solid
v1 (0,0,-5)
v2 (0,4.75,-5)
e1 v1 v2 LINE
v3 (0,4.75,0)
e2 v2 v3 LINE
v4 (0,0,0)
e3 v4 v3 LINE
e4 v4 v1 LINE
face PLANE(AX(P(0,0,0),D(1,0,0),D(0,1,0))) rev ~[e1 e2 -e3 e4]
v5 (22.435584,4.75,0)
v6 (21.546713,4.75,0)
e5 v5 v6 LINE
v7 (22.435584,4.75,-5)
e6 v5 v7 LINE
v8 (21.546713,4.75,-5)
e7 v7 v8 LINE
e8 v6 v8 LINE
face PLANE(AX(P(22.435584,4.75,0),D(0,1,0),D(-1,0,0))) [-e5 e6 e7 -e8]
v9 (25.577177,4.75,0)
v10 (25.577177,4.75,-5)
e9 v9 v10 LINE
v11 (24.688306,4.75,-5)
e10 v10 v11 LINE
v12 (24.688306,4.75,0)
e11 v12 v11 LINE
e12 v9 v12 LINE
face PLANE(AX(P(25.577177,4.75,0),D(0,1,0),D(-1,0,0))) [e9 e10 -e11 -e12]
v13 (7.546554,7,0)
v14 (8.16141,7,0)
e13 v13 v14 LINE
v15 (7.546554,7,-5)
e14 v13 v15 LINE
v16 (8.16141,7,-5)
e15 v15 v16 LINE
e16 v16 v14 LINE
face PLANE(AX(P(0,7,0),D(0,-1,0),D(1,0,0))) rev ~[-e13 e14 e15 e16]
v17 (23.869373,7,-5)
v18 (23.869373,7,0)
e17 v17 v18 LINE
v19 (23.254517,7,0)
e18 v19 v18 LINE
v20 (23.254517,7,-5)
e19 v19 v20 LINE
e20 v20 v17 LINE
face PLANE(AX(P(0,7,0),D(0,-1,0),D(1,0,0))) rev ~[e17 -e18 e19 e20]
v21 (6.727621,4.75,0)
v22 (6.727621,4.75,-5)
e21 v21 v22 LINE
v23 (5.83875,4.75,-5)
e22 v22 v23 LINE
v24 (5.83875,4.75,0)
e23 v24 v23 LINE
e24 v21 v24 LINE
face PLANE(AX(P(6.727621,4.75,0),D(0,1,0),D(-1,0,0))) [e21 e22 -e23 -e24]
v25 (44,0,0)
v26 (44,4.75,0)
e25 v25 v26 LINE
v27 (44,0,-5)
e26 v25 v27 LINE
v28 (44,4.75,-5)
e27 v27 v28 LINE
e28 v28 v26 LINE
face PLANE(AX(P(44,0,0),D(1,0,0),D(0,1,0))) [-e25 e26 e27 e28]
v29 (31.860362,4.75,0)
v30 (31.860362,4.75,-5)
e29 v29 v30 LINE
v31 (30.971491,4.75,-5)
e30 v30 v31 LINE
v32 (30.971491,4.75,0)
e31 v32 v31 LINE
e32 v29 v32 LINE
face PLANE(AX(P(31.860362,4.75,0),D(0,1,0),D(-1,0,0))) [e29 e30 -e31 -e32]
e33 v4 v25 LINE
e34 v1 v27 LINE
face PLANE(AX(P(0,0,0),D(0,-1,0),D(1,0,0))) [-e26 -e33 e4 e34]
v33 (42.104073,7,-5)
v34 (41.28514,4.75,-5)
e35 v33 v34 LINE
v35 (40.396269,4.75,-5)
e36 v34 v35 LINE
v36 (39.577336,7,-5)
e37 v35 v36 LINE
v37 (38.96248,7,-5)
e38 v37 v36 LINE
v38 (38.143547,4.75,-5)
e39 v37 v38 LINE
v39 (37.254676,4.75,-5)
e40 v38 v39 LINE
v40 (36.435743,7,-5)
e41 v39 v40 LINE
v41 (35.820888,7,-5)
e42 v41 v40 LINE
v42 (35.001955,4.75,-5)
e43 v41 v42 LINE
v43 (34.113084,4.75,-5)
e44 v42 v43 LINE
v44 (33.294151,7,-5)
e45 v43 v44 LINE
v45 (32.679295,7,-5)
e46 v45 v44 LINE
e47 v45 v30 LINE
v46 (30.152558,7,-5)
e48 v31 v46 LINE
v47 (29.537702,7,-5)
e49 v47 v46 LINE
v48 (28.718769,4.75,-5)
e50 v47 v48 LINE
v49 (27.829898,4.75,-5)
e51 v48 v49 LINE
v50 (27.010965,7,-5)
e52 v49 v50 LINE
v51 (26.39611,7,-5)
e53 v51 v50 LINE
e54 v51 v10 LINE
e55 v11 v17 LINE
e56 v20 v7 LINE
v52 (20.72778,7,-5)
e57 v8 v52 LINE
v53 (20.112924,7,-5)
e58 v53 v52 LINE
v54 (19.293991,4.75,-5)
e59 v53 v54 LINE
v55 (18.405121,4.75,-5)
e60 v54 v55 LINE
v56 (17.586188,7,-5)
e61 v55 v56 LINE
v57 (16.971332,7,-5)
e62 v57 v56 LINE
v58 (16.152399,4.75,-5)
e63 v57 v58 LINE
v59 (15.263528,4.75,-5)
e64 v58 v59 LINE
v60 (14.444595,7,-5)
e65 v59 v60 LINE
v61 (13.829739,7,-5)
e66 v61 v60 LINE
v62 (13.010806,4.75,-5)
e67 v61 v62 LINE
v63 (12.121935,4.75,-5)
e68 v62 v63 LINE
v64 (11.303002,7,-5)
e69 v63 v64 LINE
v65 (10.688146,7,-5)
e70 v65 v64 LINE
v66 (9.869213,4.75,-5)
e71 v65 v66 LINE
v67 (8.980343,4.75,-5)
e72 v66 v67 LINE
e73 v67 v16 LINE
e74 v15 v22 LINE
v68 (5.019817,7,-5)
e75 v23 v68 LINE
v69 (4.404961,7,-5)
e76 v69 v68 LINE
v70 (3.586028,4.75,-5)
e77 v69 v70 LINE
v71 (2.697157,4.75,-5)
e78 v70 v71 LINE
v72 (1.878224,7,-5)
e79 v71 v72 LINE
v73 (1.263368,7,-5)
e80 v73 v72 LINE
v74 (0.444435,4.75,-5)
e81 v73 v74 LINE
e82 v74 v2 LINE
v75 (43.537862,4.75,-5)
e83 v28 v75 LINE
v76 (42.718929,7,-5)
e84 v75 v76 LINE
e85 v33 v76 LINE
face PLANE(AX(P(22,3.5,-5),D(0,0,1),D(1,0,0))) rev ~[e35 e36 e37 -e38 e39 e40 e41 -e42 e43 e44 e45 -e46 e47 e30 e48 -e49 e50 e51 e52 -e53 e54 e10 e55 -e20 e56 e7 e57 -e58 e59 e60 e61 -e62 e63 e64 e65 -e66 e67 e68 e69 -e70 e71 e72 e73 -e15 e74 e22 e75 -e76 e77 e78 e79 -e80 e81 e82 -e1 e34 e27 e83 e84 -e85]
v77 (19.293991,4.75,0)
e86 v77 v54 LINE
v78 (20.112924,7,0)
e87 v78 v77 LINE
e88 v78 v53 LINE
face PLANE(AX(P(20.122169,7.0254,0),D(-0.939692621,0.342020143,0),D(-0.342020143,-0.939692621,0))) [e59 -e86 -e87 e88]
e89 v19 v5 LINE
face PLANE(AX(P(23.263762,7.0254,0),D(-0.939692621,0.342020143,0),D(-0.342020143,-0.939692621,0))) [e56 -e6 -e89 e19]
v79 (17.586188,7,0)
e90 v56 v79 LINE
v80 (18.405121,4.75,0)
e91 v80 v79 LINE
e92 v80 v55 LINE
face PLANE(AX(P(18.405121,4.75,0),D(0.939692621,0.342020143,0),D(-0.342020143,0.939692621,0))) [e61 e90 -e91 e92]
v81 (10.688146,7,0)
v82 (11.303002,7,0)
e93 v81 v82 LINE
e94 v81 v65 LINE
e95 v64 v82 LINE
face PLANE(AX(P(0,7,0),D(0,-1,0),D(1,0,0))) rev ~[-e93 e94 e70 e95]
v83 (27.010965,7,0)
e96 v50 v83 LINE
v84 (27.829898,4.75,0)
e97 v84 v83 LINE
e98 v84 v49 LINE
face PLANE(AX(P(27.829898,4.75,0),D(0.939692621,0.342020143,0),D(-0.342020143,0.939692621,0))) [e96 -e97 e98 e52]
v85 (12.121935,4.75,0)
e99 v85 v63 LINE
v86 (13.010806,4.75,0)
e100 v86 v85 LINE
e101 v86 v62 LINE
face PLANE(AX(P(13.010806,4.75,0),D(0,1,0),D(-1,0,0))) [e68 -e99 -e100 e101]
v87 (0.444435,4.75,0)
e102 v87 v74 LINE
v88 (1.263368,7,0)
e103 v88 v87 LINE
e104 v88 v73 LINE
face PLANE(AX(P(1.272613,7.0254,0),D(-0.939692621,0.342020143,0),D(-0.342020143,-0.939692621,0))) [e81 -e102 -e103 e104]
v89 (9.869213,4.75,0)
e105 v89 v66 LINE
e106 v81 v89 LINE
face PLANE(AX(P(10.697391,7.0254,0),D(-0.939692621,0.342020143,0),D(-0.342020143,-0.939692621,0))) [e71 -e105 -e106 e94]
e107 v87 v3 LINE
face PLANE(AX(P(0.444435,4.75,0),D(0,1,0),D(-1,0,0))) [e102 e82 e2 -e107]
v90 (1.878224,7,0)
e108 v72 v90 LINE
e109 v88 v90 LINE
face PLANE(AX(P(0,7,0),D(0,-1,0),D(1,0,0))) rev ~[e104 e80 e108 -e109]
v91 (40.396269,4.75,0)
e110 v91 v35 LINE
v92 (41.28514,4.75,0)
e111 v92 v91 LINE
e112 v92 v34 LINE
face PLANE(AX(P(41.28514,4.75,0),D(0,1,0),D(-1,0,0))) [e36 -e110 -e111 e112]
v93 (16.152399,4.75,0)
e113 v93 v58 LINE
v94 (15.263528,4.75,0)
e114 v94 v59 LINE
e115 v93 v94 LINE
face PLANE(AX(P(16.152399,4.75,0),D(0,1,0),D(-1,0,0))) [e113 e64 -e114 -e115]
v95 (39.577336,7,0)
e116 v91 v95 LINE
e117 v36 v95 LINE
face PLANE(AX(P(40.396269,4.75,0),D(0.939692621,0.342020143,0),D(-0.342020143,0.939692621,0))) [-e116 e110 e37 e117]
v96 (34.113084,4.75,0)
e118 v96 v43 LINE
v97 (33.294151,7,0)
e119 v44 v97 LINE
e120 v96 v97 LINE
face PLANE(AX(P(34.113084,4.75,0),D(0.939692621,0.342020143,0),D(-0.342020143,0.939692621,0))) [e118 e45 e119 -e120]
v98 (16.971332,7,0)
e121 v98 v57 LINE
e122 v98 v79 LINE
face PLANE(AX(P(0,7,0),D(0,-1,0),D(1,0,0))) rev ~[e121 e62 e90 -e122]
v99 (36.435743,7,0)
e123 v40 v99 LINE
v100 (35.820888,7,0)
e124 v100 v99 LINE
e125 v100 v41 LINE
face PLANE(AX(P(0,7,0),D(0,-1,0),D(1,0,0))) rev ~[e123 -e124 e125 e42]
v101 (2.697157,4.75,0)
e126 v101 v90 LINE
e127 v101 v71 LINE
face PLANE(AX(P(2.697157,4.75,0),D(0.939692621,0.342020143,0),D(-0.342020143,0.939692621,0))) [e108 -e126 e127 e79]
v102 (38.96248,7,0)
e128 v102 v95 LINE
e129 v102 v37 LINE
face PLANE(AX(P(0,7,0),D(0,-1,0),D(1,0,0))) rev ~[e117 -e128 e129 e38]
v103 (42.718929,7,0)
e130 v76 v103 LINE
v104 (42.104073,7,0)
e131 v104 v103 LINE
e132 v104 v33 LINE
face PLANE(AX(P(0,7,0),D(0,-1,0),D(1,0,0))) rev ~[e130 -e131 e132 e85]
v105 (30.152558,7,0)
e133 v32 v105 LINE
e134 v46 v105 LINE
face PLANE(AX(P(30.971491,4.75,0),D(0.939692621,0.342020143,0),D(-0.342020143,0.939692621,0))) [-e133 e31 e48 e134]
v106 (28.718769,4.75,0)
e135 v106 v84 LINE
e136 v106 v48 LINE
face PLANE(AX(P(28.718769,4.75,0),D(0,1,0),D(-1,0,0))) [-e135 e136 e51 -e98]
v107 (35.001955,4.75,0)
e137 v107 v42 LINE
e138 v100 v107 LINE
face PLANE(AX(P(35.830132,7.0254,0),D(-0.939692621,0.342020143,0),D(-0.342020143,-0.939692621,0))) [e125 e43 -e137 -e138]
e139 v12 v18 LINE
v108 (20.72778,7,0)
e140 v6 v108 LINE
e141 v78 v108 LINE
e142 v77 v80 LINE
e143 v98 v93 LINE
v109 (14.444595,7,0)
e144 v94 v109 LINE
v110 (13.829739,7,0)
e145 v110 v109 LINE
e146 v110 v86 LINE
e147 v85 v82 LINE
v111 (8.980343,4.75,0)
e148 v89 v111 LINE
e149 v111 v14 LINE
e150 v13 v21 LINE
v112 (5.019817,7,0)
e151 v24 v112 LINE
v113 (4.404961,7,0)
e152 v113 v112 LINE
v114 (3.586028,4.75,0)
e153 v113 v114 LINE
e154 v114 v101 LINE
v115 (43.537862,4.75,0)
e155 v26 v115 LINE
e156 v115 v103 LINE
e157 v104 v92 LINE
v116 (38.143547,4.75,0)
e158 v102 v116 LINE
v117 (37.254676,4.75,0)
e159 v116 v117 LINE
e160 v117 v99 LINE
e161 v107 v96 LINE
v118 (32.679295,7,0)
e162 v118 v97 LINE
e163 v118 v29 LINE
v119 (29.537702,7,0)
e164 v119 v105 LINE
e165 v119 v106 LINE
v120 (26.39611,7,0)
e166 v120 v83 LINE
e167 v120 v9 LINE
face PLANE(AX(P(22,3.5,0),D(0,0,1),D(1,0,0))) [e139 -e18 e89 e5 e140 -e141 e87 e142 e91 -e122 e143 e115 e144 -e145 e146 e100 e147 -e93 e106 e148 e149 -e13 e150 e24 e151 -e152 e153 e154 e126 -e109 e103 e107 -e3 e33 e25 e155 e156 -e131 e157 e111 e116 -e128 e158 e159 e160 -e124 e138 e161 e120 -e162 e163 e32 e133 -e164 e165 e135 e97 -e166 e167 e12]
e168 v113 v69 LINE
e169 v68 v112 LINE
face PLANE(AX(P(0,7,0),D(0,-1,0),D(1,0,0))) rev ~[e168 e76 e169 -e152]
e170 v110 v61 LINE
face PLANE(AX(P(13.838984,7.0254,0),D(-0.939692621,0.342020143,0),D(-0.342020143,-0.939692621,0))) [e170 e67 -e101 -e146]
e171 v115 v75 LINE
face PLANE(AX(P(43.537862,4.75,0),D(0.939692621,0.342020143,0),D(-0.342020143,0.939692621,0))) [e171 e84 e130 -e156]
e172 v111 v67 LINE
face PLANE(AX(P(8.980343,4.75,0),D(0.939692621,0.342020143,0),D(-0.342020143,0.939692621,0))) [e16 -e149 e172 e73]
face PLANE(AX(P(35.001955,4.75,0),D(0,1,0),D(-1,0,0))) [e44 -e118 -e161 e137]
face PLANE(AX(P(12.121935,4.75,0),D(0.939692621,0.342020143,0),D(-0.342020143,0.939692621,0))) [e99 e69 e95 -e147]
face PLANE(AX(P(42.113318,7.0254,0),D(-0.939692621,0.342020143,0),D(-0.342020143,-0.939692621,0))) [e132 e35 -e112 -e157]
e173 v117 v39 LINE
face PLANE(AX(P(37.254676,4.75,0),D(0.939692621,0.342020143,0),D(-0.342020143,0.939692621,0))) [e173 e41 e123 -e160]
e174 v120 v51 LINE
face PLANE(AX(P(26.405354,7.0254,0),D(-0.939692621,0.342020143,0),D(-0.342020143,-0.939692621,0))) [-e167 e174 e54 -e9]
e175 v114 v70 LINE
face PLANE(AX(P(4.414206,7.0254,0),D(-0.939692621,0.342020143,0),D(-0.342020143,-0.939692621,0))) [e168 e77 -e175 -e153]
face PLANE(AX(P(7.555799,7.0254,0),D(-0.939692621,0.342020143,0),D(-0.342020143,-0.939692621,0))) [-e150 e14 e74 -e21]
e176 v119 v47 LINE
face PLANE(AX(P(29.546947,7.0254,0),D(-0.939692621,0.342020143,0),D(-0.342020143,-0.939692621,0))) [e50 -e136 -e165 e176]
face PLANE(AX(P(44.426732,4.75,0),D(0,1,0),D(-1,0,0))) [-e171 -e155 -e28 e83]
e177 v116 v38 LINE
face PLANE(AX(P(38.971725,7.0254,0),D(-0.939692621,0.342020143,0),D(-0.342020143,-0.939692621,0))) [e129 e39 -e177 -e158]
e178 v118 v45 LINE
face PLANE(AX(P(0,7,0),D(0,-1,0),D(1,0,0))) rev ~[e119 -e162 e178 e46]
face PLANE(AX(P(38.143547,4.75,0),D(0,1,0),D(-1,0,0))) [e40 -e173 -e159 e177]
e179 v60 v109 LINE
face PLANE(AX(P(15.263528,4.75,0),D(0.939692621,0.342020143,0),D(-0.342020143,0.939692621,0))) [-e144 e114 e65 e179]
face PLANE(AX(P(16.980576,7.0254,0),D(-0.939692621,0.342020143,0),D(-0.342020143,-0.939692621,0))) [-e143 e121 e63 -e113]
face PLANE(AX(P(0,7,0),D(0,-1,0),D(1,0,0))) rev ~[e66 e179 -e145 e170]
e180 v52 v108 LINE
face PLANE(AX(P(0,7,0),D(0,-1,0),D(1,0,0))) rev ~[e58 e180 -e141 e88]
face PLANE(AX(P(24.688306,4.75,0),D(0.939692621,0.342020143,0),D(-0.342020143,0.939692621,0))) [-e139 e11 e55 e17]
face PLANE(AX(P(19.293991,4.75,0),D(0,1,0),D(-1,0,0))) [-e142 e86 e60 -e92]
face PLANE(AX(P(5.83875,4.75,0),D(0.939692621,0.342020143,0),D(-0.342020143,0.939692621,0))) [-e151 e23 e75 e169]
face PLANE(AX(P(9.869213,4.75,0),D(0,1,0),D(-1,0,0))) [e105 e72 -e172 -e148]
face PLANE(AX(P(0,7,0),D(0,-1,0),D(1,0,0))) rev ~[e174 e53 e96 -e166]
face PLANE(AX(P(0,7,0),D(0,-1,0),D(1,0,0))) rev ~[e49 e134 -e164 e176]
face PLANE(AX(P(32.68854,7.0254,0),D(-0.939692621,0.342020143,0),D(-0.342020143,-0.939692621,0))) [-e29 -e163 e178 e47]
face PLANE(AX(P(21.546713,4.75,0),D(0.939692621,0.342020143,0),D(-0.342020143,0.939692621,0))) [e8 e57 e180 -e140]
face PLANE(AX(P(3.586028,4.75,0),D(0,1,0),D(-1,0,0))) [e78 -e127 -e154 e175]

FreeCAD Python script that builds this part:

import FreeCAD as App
import Part
import Sketcher
from FreeCAD import Vector
Q = App.Units.Quantity

doc = App.newDocument("Part")
body = doc.addObject("PartDesign::Body", "Body")

# Sketch on XY plane
sketch1 = body.newObject("Sketcher::SketchObject", "Sketch")
sketch1.AttachmentSupport = (doc.getObject("XY_Plane"), [""])
sketch1.MapMode = "FlatFace"
sketch1.addGeometry([
    Part.LineSegment(Vector(0, 7, 0), Vector(0, 0, 0)),
    Part.LineSegment(Vector(0, 0, 0), Vector(44, 0, 0)),
    Part.LineSegment(Vector(44, 0, 0), Vector(44, 7, 0)),
    Part.LineSegment(Vector(44, 7, 0), Vector(0, 7, 0)),
], False)
sketch1.addConstraint([
    Sketcher.Constraint("Coincident", 0, 2, 1, 1),
    Sketcher.Constraint("Coincident", 1, 2, 2, 1),
    Sketcher.Constraint("Coincident", 2, 2, 3, 1),
    Sketcher.Constraint("Coincident", 3, 2, 0, 1),
    Sketcher.Constraint("Vertical", 0),
    Sketcher.Constraint("Horizontal", 1),
    Sketcher.Constraint("Vertical", 2),
    Sketcher.Constraint("Horizontal", 3),
    Sketcher.Constraint("Coincident", 0, 2, -1, 1),
    Sketcher.Constraint("DistanceX", 1, 1, 1, 2, Q("44 mm")),
    Sketcher.Constraint("DistanceY", 0, 2, 0, 1, Q("7 mm")),
])
pad1 = body.newObject("PartDesign::Pad", "Pad")
pad1.Profile = sketch1
pad1.Length = 5
pad1.Reversed = True

# Sketch on XY plane
sketch2 = body.newObject("Sketcher::SketchObject", "Sketch001")
sketch2.AttachmentSupport = (doc.getObject("XY_Plane"), [""])
sketch2.MapMode = "FlatFace"
sketch2.addGeometry([
    Part.LineSegment(Vector(-0.4, 4.8, 0), Vector(0.4, 4.8, 0)),
    Part.LineSegment(Vector(0.4, 4.8, 0), Vector(1.3, 7, 0)),
    Part.LineSegment(Vector(1.3, 7, 0), Vector(-1.3, 7, 0)),
    Part.LineSegment(Vector(-1.3, 7, 0), Vector(-0.4, 4.8, 0)),
], False)
sketch2.addConstraint([
    Sketcher.Constraint("Coincident", 0, 2, 1, 1),
    Sketcher.Constraint("Coincident", 1, 2, 2, 1),
    Sketcher.Constraint("Coincident", 2, 2, 3, 1),
    Sketcher.Constraint("Coincident", 3, 2, 0, 1),
    Sketcher.Constraint("Horizontal", 0),
    Sketcher.Constraint("Horizontal", 2),
    Sketcher.Constraint("Equal", 1, 3),
    Sketcher.Constraint("Angle", 1, Q("70 deg")),
    Sketcher.Constraint("DistanceY", -1, 1, 0, 2, Q("4.75 mm")),
    Sketcher.Constraint("DistanceX", 0, 1, 0, 2, Q("0.888871 mm")),
    Sketcher.Constraint("DistanceY", -1, 1, 1, 2, Q("7.0254 mm")),
    Sketcher.Constraint("DistanceX", -1, 1, 0, 2, Q("0.444435 mm")),
])
pocket1 = body.newObject("PartDesign::Pocket", "Pocket")
pocket1.Profile = sketch2
pocket1.Type = "ThroughAll"
doc.recompute()

linearpattern = body.newObject("PartDesign::LinearPattern", "LinearPattern")
linearpattern.Originals = [pocket1]
linearpattern.Direction = (doc.getObject("X_Axis"), [""])
linearpattern.Mode = "offset"
linearpattern.Offset = 3.141593
linearpattern.Occurrences = 15
body.Tip = linearpattern

doc.recompute()
